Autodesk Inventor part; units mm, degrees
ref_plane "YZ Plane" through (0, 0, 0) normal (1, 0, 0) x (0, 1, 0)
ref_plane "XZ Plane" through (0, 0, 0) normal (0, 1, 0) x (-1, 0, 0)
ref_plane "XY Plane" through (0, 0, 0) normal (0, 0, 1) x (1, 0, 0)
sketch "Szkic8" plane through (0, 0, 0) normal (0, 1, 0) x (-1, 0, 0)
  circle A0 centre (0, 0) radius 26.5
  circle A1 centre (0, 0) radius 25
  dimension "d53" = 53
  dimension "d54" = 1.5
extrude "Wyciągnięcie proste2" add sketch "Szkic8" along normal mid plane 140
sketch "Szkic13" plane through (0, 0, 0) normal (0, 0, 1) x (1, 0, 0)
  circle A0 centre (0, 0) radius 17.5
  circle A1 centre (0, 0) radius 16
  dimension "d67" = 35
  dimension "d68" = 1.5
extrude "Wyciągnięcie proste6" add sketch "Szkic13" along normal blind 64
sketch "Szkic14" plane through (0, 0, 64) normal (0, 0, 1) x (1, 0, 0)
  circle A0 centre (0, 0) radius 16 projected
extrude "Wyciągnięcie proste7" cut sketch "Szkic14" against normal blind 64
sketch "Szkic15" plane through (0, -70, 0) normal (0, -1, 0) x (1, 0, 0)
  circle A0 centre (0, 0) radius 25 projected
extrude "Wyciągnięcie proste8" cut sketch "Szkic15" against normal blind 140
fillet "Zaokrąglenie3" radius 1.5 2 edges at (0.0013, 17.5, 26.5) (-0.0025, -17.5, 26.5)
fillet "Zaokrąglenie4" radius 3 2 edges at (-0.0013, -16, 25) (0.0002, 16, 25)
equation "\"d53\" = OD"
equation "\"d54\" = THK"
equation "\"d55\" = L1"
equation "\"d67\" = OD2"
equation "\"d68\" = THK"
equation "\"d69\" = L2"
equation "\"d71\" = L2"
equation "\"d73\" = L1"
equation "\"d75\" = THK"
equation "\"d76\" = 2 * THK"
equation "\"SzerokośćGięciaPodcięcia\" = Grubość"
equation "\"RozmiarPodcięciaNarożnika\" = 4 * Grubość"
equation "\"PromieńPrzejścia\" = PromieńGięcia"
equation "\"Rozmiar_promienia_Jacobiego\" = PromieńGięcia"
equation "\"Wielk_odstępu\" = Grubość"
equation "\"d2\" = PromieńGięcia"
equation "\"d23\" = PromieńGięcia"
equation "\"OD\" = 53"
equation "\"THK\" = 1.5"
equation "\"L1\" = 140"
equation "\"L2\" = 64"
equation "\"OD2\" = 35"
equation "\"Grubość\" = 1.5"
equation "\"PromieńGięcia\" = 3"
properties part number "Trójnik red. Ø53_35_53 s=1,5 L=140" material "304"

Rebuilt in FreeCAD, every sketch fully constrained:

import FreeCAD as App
import Part
import Sketcher

V = App.Vector
Q = App.Units.Quantity


def edges_at(feature, points):
    """Names of the edges that pass closest to the given points."""
    edges = feature.Shape.Edges
    near = lambda p: min(range(len(edges)), key=lambda i: edges[i].distToShape(Part.Vertex(*p))[0])
    return sorted({f"Edge{near(p) + 1}" for p in points})

doc = App.newDocument("Part")
params = doc.addObject("Spreadsheet::Sheet", "Params")
for row, (alias, value) in enumerate([
    ("sketch1_diameter", "53 mm"),
    ("sketch1_diameter2", "50 mm"),
    ("pad1_length", "140 mm"),
    ("sketch2_diameter", "35 mm"),
    ("sketch2_diameter2", "32 mm"),
    ("pad2_length", "64 mm"),
    ("sketch3_diameter", "32 mm"),
    ("pocket1_length", "64 mm"),
    ("sketch4_diameter", "50 mm"),
    ("pocket2_length", "140 mm"),
    ("fillet_radius", "1.5 mm"),
    ("fillet2_radius", "3 mm"),
], start=1):
    params.set(f"A{row}", alias)
    params.set(f"B{row}", "=" + value)
    params.setAlias(f"B{row}", alias)

body = doc.addObject("PartDesign::Body", "Body")

# Sketch on XZ plane
sketch1 = doc.addObject("Sketcher::SketchObject", "Sketch")
body.addObject(sketch1)
sketch1.AttachmentSupport = (doc.XZ_Plane, [""])
sketch1.MapMode = "FlatFace"
sketch1.addGeometry(Part.Circle(V(0, 0, 0), V(0, 0, 1), 26), False)
sketch1.addGeometry(Part.Circle(V(0, 0, 0), V(0, 0, 1), 25), False)
sketch1.addConstraint(Sketcher.Constraint("Coincident", 0, 3, -1, 1))
sketch1.addConstraint(Sketcher.Constraint("Coincident", 1, 3, -1, 1))
sketch1.addConstraint(Sketcher.Constraint("Diameter", 0, Q("53 mm")))
sketch1.addConstraint(Sketcher.Constraint("Diameter", 1, Q("50 mm")))
sketch1.setExpression("Constraints[2]", "Params.sketch1_diameter")
sketch1.setExpression("Constraints[3]", "Params.sketch1_diameter2")
pad1 = doc.addObject("PartDesign::Pad", "Pad")
body.addObject(pad1)
pad1.Profile = sketch1
pad1.setExpression("Length", "Params.pad1_length")
pad1.Midplane = True

# Sketch on XY plane
sketch2 = doc.addObject("Sketcher::SketchObject", "Sketch001")
body.addObject(sketch2)
sketch2.AttachmentSupport = (doc.XY_Plane, [""])
sketch2.MapMode = "FlatFace"
sketch2.addGeometry(Part.Circle(V(0, 0, 0), V(0, 0, 1), 18), False)
sketch2.addGeometry(Part.Circle(V(0, 0, 0), V(0, 0, 1), 16), False)
sketch2.addConstraint(Sketcher.Constraint("Coincident", 0, 3, -1, 1))
sketch2.addConstraint(Sketcher.Constraint("Coincident", 1, 3, -1, 1))
sketch2.addConstraint(Sketcher.Constraint("Diameter", 0, Q("35 mm")))
sketch2.addConstraint(Sketcher.Constraint("Diameter", 1, Q("32 mm")))
sketch2.setExpression("Constraints[2]", "Params.sketch2_diameter")
sketch2.setExpression("Constraints[3]", "Params.sketch2_diameter2")
pad2 = doc.addObject("PartDesign::Pad", "Pad001")
body.addObject(pad2)
pad2.Profile = sketch2
pad2.setExpression("Length", "Params.pad2_length")

# Sketch on XY plane
sketch3 = doc.addObject("Sketcher::SketchObject", "Sketch002")
body.addObject(sketch3)
sketch3.AttachmentSupport = (doc.XY_Plane, [""])
sketch3.MapMode = "FlatFace"
sketch3.AttachmentOffset = App.Placement(V(0, 0, 64), App.Rotation())
sketch3.addGeometry(Part.Circle(V(0, 0, 0), V(0, 0, 1), 16), False)
sketch3.addConstraint(Sketcher.Constraint("Coincident", 0, 3, -1, 1))
sketch3.addConstraint(Sketcher.Constraint("Diameter", 0, Q("32 mm")))
sketch3.setExpression("Constraints[1]", "Params.sketch3_diameter")
pocket1 = doc.addObject("PartDesign::Pocket", "Pocket")
body.addObject(pocket1)
pocket1.Profile = sketch3
pocket1.setExpression("Length", "Params.pocket1_length")

# Sketch on XZ plane
sketch4 = doc.addObject("Sketcher::SketchObject", "Sketch003")
body.addObject(sketch4)
sketch4.AttachmentSupport = (doc.XZ_Plane, [""])
sketch4.MapMode = "FlatFace"
sketch4.AttachmentOffset = App.Placement(V(0, 0, 70), App.Rotation())
sketch4.addGeometry(Part.Circle(V(0, 0, 0), V(0, 0, 1), 25), False)
sketch4.addConstraint(Sketcher.Constraint("Coincident", 0, 3, -1, 1))
sketch4.addConstraint(Sketcher.Constraint("Diameter", 0, Q("50 mm")))
sketch4.setExpression("Constraints[1]", "Params.sketch4_diameter")
pocket2 = doc.addObject("PartDesign::Pocket", "Pocket001")
body.addObject(pocket2)
pocket2.Profile = sketch4
pocket2.setExpression("Length", "Params.pocket2_length")
doc.recompute()

fillet = doc.addObject("PartDesign::Fillet", "Fillet")
body.addObject(fillet)
fillet.Base = (pocket2, edges_at(pocket2, [(0.001, 17.5, 26.5), (-0.003, -17.5, 26.5)]))
fillet.setExpression("Radius", "Params.fillet_radius")
doc.recompute()

fillet2 = doc.addObject("PartDesign::Fillet", "Fillet001")
body.addObject(fillet2)
fillet2.Base = (fillet, edges_at(fillet, [(-0.001, -16, 25), (0, 16, 25)]))
fillet2.setExpression("Radius", "Params.fillet2_radius")

doc.recompute()
